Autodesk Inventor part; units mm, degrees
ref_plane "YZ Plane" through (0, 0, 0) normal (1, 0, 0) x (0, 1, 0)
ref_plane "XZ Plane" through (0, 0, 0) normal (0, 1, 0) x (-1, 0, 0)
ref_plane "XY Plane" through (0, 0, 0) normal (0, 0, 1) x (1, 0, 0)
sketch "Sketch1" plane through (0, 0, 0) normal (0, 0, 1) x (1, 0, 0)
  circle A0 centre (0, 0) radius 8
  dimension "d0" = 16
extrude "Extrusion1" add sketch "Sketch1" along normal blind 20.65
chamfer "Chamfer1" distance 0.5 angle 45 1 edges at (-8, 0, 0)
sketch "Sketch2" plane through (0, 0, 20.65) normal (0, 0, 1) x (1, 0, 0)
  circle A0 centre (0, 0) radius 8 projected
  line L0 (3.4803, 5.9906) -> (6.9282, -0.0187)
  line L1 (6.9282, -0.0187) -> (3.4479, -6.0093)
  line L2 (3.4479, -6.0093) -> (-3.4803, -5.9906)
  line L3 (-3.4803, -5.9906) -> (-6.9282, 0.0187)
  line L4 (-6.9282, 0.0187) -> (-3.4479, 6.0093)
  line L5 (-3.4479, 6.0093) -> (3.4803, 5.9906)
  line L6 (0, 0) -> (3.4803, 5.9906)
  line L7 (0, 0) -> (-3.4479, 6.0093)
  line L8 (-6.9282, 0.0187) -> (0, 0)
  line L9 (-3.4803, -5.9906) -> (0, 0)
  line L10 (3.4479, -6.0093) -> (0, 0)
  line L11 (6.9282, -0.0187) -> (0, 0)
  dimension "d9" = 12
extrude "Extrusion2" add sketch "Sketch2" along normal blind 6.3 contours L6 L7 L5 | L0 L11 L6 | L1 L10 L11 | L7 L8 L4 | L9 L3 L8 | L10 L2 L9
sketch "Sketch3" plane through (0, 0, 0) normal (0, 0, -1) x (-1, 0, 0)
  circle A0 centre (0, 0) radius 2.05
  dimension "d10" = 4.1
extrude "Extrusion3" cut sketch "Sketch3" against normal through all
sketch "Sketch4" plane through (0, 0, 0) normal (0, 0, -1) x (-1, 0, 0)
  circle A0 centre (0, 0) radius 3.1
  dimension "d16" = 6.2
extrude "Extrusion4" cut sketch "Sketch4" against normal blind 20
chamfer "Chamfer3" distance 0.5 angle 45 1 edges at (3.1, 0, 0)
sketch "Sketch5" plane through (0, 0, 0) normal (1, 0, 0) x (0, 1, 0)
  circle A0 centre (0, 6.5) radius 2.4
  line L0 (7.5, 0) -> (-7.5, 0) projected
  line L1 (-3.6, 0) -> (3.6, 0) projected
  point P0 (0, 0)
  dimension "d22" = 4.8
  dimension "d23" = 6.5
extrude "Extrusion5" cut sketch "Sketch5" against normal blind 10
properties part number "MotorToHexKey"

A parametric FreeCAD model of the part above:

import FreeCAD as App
import Part
import Sketcher

V = App.Vector
Q = App.Units.Quantity


def edges_at(feature, points):
    """Names of the edges that pass closest to the given points."""
    edges = feature.Shape.Edges
    near = lambda p: min(range(len(edges)), key=lambda i: edges[i].distToShape(Part.Vertex(*p))[0])
    return sorted({f"Edge{near(p) + 1}" for p in points})

doc = App.newDocument("Part")
body = doc.addObject("PartDesign::Body", "Body")

sketch1 = body.newObject("Sketcher::SketchObject", "Sketch")
sketch1.AttachmentSupport = (doc.getObject("XY_Plane"), [""])
sketch1.MapMode = "FlatFace"
sketch1.addGeometry(Part.Circle(V(0, 0, 0), V(0, 0, 1), 8), False)
sketch1.addConstraint([
    Sketcher.Constraint("Coincident", 0, 3, -1, 1),
    Sketcher.Constraint("Diameter", 0, Q("16 mm")),
])
pad1 = body.newObject("PartDesign::Pad", "Pad")
pad1.Profile = sketch1
pad1.Length = 20.65
doc.recompute()

chamfer = body.newObject("PartDesign::Chamfer", "Chamfer")
chamfer.Base = (pad1, edges_at(pad1, [(-8, 0, 0)]))
chamfer.Size = 0.5

sketch2 = body.newObject("Sketcher::SketchObject", "Sketch001")
sketch2.AttachmentSupport = (doc.getObject("XY_Plane"), [""])
sketch2.MapMode = "FlatFace"
sketch2.AttachmentOffset = App.Placement(V(0, 0, 20.65), App.Rotation())
sketch2.addGeometry([
    Part.LineSegment(V(3, 6, 0), V(-3, 6, 0)),
    Part.LineSegment(V(-3, 6, 0), V(-7, 0, 0)),
    Part.LineSegment(V(-7, 0, 0), V(-3, -6, 0)),
    Part.LineSegment(V(-3, -6, 0), V(3, -6, 0)),
    Part.LineSegment(V(3, -6, 0), V(7, 0, 0)),
    Part.LineSegment(V(7, 0, 0), V(3, 6, 0)),
], False)
sketch2.addConstraint([
    Sketcher.Constraint("Coincident", 0, 2, 1, 1),
    Sketcher.Constraint("Coincident", 1, 2, 2, 1),
    Sketcher.Constraint("Coincident", 2, 2, 3, 1),
    Sketcher.Constraint("Coincident", 3, 2, 4, 1),
    Sketcher.Constraint("Coincident", 4, 2, 5, 1),
    Sketcher.Constraint("Coincident", 5, 2, 0, 1),
    Sketcher.Constraint("Symmetric", 0, 2, 3, 2, -1, 1),
    Sketcher.Constraint("Symmetric", 1, 2, 4, 2, -1, 1),
    Sketcher.Constraint("Symmetric", 2, 2, 5, 2, -1, 1),
    Sketcher.Constraint("Equal", 0, 1),
    Sketcher.Constraint("Equal", 1, 2),
    Sketcher.Constraint("DistanceY", 2, 2, 0, 2, Q("12 mm")),
    Sketcher.Constraint("DistanceX", 0, 2, -1, 1, Q("3.448 mm")),
    Sketcher.Constraint("DistanceX", 1, 2, 2, 2, Q("3.448 mm")),
    Sketcher.Constraint("DistanceY", 3, 2, 1, 2, Q("6.028 mm")),
])
pad2 = body.newObject("PartDesign::Pad", "Pad001")
pad2.Profile = sketch2
pad2.Length = 6.3

sketch3 = body.newObject("Sketcher::SketchObject", "Sketch002")
sketch3.AttachmentSupport = (doc.getObject("XY_Plane"), [""])
sketch3.MapMode = "FlatFace"
sketch3.addGeometry(Part.Circle(V(0, 0, 0), V(0, 0, 1), 2), False)
sketch3.addConstraint([
    Sketcher.Constraint("Coincident", 0, 3, -1, 1),
    Sketcher.Constraint("Diameter", 0, Q("4.1 mm")),
])
pocket1 = body.newObject("PartDesign::Pocket", "Pocket")
pocket1.Profile = sketch3
pocket1.Type = "ThroughAll"
pocket1.Reversed = True

sketch4 = body.newObject("Sketcher::SketchObject", "Sketch003")
sketch4.AttachmentSupport = (doc.getObject("XY_Plane"), [""])
sketch4.MapMode = "FlatFace"
sketch4.addGeometry(Part.Circle(V(0, 0, 0), V(0, 0, 1), 3.1), False)
sketch4.addConstraint([
    Sketcher.Constraint("Coincident", 0, 3, -1, 1),
    Sketcher.Constraint("Diameter", 0, Q("6.2 mm")),
])
pocket2 = body.newObject("PartDesign::Pocket", "Pocket001")
pocket2.Profile = sketch4
pocket2.Length = 20
pocket2.Reversed = True
doc.recompute()

chamfer2 = body.newObject("PartDesign::Chamfer", "Chamfer001")
chamfer2.Base = (pocket2, edges_at(pocket2, [(3.1, 0, 0)]))
chamfer2.Size = 0.5

sketch5 = body.newObject("Sketcher::SketchObject", "Sketch004")
sketch5.AttachmentSupport = (doc.getObject("YZ_Plane"), [""])
sketch5.MapMode = "FlatFace"
sketch5.addGeometry(Part.Circle(V(0, 6.5, 0), V(0, 0, 1), 2.4), False)
sketch5.addConstraint([
    Sketcher.Constraint("PointOnObject", 0, 3, -2),
    Sketcher.Constraint("Diameter", 0, Q("4.8 mm")),
    Sketcher.Constraint("DistanceY", -1, 1, 0, 3, Q("6.5 mm")),
])
pocket3 = body.newObject("PartDesign::Pocket", "Pocket002")
pocket3.Profile = sketch5
pocket3.Length = 10

doc.recompute()
